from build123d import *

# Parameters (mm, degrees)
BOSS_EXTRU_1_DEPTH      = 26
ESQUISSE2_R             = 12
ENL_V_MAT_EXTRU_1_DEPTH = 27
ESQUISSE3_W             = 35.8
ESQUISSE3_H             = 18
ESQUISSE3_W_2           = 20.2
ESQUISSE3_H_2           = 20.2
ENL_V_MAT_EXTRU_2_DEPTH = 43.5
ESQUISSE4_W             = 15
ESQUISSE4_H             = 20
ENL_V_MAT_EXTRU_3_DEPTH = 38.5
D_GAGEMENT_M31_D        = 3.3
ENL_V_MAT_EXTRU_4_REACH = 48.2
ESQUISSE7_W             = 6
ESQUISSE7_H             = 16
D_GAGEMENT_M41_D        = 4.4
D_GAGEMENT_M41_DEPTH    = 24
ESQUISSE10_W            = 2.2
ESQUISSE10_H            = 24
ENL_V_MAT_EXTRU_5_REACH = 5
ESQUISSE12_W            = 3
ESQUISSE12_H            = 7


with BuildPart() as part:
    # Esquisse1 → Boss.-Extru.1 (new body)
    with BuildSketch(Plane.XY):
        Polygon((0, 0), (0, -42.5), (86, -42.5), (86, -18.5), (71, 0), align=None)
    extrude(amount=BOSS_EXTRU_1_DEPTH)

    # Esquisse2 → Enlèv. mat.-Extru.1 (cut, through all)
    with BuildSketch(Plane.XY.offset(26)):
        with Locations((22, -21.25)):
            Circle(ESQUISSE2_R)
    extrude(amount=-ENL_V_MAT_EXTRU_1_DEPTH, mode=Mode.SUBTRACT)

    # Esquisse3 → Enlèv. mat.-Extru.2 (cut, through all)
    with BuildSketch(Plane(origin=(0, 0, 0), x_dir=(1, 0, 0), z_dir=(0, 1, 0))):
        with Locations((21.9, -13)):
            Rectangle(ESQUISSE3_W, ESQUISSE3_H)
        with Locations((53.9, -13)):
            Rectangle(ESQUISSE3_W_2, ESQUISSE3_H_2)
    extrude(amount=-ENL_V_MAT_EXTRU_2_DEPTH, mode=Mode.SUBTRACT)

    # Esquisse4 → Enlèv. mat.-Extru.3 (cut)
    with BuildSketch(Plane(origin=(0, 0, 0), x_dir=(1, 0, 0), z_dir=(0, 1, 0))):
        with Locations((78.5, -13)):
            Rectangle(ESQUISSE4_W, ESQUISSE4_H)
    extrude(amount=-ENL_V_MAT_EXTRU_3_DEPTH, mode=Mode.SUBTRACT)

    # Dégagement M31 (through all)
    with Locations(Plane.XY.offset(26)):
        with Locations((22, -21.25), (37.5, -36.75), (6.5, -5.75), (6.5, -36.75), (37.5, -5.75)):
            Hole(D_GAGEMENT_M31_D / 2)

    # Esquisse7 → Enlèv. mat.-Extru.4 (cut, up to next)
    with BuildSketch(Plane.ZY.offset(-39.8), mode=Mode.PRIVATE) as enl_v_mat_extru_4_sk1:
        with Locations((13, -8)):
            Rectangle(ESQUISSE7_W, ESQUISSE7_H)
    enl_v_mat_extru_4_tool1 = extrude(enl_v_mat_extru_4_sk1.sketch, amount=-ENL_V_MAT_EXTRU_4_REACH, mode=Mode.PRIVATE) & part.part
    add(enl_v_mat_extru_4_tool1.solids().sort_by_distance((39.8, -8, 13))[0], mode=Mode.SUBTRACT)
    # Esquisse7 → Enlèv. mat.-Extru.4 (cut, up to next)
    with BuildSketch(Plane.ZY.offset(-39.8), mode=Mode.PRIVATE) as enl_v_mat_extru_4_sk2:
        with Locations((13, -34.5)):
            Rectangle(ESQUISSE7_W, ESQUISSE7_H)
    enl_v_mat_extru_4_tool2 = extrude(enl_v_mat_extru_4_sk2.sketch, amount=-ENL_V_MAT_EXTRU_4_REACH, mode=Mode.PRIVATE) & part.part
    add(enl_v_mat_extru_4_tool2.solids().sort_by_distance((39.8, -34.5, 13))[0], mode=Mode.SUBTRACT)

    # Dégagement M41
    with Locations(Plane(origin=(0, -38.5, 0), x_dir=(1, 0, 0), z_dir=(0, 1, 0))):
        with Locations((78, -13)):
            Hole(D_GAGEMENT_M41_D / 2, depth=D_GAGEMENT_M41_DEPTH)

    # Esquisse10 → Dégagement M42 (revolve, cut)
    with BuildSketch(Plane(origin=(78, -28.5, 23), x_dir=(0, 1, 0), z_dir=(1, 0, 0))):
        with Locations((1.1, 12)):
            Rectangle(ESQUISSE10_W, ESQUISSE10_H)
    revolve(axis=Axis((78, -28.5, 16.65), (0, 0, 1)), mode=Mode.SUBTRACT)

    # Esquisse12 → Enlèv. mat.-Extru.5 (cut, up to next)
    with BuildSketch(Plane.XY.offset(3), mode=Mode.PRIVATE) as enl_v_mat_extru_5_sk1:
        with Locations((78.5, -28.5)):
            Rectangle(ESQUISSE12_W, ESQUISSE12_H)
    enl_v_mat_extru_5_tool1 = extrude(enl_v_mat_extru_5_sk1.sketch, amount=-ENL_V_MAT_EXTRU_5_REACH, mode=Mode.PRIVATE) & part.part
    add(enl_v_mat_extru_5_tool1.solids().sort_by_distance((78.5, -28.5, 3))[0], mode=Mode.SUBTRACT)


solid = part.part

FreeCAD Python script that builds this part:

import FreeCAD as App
import Part
import Sketcher

V = App.Vector
Q = App.Units.Quantity


def add_polygon(sketch, points):
    """Adds a closed chain of lines whose ends are joined by coincident constraints."""
    first, n = sketch.GeometryCount, len(points)
    for a, b in zip(points, points[1:] + points[:1]):
        sketch.addGeometry(Part.LineSegment(App.Vector(*a, 0), App.Vector(*b, 0)), False)
    for i in range(n):
        sketch.addConstraint(Sketcher.Constraint("Coincident", first + i, 2, first + (i + 1) % n, 1))

doc = App.newDocument("Part")
params = doc.addObject("Spreadsheet::Sheet", "Params")
for row, (alias, value) in enumerate([
    ("sketch1_width", "86 mm"),
    ("sketch1_width2", "71 mm"),
    ("sketch1_height", "24 mm"),
    ("sketch1_height2", "42.5 mm"),
    ("pad1_length", "26 mm"),
    ("sketch2_diameter", "24 mm"),
    ("sketch3_height", "18 mm"),
    ("sketch3_width", "35.8 mm"),
    ("sketch3_width2", "20.2 mm"),
    ("sketch4_width", "15 mm"),
    ("sketch4_height", "20 mm"),
    ("pocket3_length", "38.5 mm"),
    ("sketch5_diameter", "3.3 mm"),
    ("hole_diameter", "3.3 mm"),
    ("sketch6_width", "16 mm"),
    ("sketch6_height", "6 mm"),
    ("sketch7_width", "16 mm"),
    ("sketch7_height", "6 mm"),
    ("sketch8_diameter", "4.4 mm"),
    ("hole2_diameter", "4.4 mm"),
    ("hole2_depth", "24 mm"),
    ("sketch9_height", "24 mm"),
    ("sketch9_width", "2.2 mm"),
    ("groove_angle", "360 deg"),
    ("sketch10_width", "3 mm"),
    ("sketch10_height", "7 mm"),
], start=1):
    params.set(f"A{row}", alias)
    params.set(f"B{row}", "=" + value)
    params.setAlias(f"B{row}", alias)

body = doc.addObject("PartDesign::Body", "Body")

sketch1 = body.newObject("Sketcher::SketchObject", "Sketch")
sketch1.AttachmentSupport = (doc.getObject("XY_Plane"), [""])
sketch1.MapMode = "FlatFace"
add_polygon(sketch1, [(0, 0), (0, -42), (86, -42), (86, -18), (71, 0)])
sketch1.addConstraint([
    Sketcher.Constraint("Vertical", 0),
    Sketcher.Constraint("Horizontal", 1),
    Sketcher.Constraint("Vertical", 2),
    Sketcher.Constraint("Horizontal", 4),
    Sketcher.Constraint("Coincident", 4, 2, -1, 1),
    Sketcher.Constraint("DistanceX", 1, 1, 1, 2, Q("86 mm")),
    Sketcher.Constraint("DistanceX", 4, 2, 4, 1, Q("71 mm")),
    Sketcher.Constraint("DistanceY", 2, 1, 2, 2, Q("24 mm")),
    Sketcher.Constraint("DistanceY", 0, 2, 0, 1, Q("42.5 mm")),
])
sketch1.setExpression("Constraints[10]", "Params.sketch1_width")
sketch1.setExpression("Constraints[11]", "Params.sketch1_width2")
sketch1.setExpression("Constraints[12]", "Params.sketch1_height")
sketch1.setExpression("Constraints[13]", "Params.sketch1_height2")
pad1 = body.newObject("PartDesign::Pad", "Pad")
pad1.Profile = sketch1
pad1.setExpression("Length", "Params.pad1_length")

sketch2 = body.newObject("Sketcher::SketchObject", "Sketch001")
sketch2.AttachmentSupport = (doc.getObject("XY_Plane"), [""])
sketch2.MapMode = "FlatFace"
sketch2.AttachmentOffset = App.Placement(V(0, 0, 26), App.Rotation())
sketch2.addGeometry(Part.Circle(V(22, -21, 0), V(0, 0, 1), 12), False)
sketch2.addConstraint([
    Sketcher.Constraint("Diameter", 0, Q("24 mm")),
    Sketcher.Constraint("DistanceX", -1, 1, 0, 3, Q("22 mm")),
    Sketcher.Constraint("DistanceY", 0, 3, -1, 1, Q("21.25 mm")),
])
sketch2.setExpression("Constraints[0]", "Params.sketch2_diameter")
pocket1 = body.newObject("PartDesign::Pocket", "Pocket")
pocket1.Profile = sketch2
pocket1.Type = "ThroughAll"

sketch3 = body.newObject("Sketcher::SketchObject", "Sketch002")
sketch3.AttachmentSupport = (doc.getObject("XZ_Plane"), [""])
sketch3.MapMode = "FlatFace"
add_polygon(sketch3, [(4, 4), (4, 22), (40, 22), (40, 4)])
add_polygon(sketch3, [(44, 3), (44, 23), (64, 23), (64, 3)])
sketch3.addConstraint([
    Sketcher.Constraint("Vertical", 0),
    Sketcher.Constraint("Horizontal", 1),
    Sketcher.Constraint("Vertical", 2),
    Sketcher.Constraint("Horizontal", 3),
    Sketcher.Constraint("Vertical", 4),
    Sketcher.Constraint("Horizontal", 5),
    Sketcher.Constraint("Vertical", 6),
    Sketcher.Constraint("Horizontal", 7),
    Sketcher.Constraint("Equal", 7, 4),
    Sketcher.Constraint("DistanceY", 0, 1, 0, 2, Q("18 mm")),
    Sketcher.Constraint("DistanceX", 1, 1, 1, 2, Q("35.8 mm")),
    Sketcher.Constraint("DistanceX", 5, 1, 5, 2, Q("20.2 mm")),
    Sketcher.Constraint("DistanceX", -1, 1, 0, 2, Q("4 mm")),
    Sketcher.Constraint("DistanceY", -1, 1, 0, 2, Q("22 mm")),
    Sketcher.Constraint("DistanceX", -1, 1, 5, 2, Q("64 mm")),
    Sketcher.Constraint("DistanceY", -1, 1, 4, 2, Q("23.1 mm")),
])
sketch3.setExpression("Constraints[17]", "Params.sketch3_height")
sketch3.setExpression("Constraints[18]", "Params.sketch3_width")
sketch3.setExpression("Constraints[19]", "Params.sketch3_width2")
pocket2 = body.newObject("PartDesign::Pocket", "Pocket001")
pocket2.Profile = sketch3
pocket2.Type = "ThroughAll"
pocket2.Reversed = True

sketch4 = body.newObject("Sketcher::SketchObject", "Sketch003")
sketch4.AttachmentSupport = (doc.getObject("XZ_Plane"), [""])
sketch4.MapMode = "FlatFace"
add_polygon(sketch4, [(71, 3), (71, 23), (86, 23), (86, 3)])
sketch4.addConstraint([
    Sketcher.Constraint("Vertical", 0),
    Sketcher.Constraint("Horizontal", 1),
    Sketcher.Constraint("Vertical", 2),
    Sketcher.Constraint("Horizontal", 3),
    Sketcher.Constraint("DistanceX", 1, 1, 1, 2, Q("15 mm")),
    Sketcher.Constraint("DistanceY", 0, 1, 0, 2, Q("20 mm")),
    Sketcher.Constraint("DistanceX", -1, 1, 0, 2, Q("71 mm")),
    Sketcher.Constraint("DistanceY", -1, 1, 0, 2, Q("23 mm")),
])
sketch4.setExpression("Constraints[8]", "Params.sketch4_width")
sketch4.setExpression("Constraints[9]", "Params.sketch4_height")
pocket3 = body.newObject("PartDesign::Pocket", "Pocket002")
pocket3.Profile = sketch4
pocket3.setExpression("Length", "Params.pocket3_length")
pocket3.Reversed = True

sketch5 = body.newObject("Sketcher::SketchObject", "Sketch004")
sketch5.AttachmentSupport = (doc.getObject("XY_Plane"), [""])
sketch5.MapMode = "FlatFace"
sketch5.AttachmentOffset = App.Placement(V(0, 0, 26), App.Rotation())
sketch5.addGeometry([
    Part.Circle(V(22, -21.2, 0), V(0, 0, 1), 1.6),
    Part.Circle(V(37.5, -36.8, 0), V(0, 0, 1), 1.6),
    Part.Circle(V(6.5, -5.8, 0), V(0, 0, 1), 1.6),
    Part.Circle(V(6.5, -36.8, 0), V(0, 0, 1), 1.6),
    Part.Circle(V(37.5, -5.8, 0), V(0, 0, 1), 1.6),
], False)
sketch5.addConstraint([
    Sketcher.Constraint("Equal", 0, 1),
    Sketcher.Constraint("Equal", 1, 2),
    Sketcher.Constraint("Equal", 2, 3),
    Sketcher.Constraint("Equal", 3, 4),
    Sketcher.Constraint("Horizontal", 1, 3, 3, 3),
    Sketcher.Constraint("Horizontal", 2, 3, 4, 3),
    Sketcher.Constraint("Vertical", 2, 3, 3, 3),
    Sketcher.Constraint("Vertical", 1, 3, 4, 3),
    Sketcher.Constraint("Diameter", 0, Q("3.3 mm")),
    Sketcher.Constraint("DistanceX", -1, 1, 0, 3, Q("22 mm")),
    Sketcher.Constraint("DistanceX", 2, 3, 1, 3, Q("31 mm")),
    Sketcher.Constraint("DistanceY", 1, 3, 2, 3, Q("31 mm")),
    Sketcher.Constraint("DistanceX", -1, 1, 1, 3, Q("37.5 mm")),
    Sketcher.Constraint("DistanceY", 1, 3, 0, 3, Q("15.5 mm")),
    Sketcher.Constraint("DistanceY", 0, 3, -1, 1, Q("21.25 mm")),
])
sketch5.setExpression("Constraints[8]", "Params.sketch5_diameter")
doc.recompute()
hole = body.newObject("PartDesign::Hole", "Hole")
hole.Profile = sketch5
hole.ThreadType = "None"
hole.setExpression("Diameter", "Params.hole_diameter")
hole.DepthType = "ThroughAll"

sketch6 = body.newObject("Sketcher::SketchObject", "Sketch005")
sketch6.AttachmentSupport = (doc.getObject("YZ_Plane"), [""])
sketch6.MapMode = "FlatFace"
sketch6.AttachmentOffset = App.Placement(V(0, 0, 39.8), App.Rotation())
add_polygon(sketch6, [(0, 10), (-16, 10), (-16, 16), (0, 16)])
sketch6.addConstraint([
    Sketcher.Constraint("Horizontal", 0),
    Sketcher.Constraint("Vertical", 1),
    Sketcher.Constraint("Horizontal", 2),
    Sketcher.Constraint("Vertical", 3),
    Sketcher.Constraint("PointOnObject", 2, 2, -2),
    Sketcher.Constraint("DistanceX", 0, 2, 0, 1, Q("16 mm")),
    Sketcher.Constraint("DistanceY", 1, 1, 1, 2, Q("6 mm")),
    Sketcher.Constraint("DistanceY", -1, 1, 0, 2, Q("10 mm")),
])
sketch6.setExpression("Constraints[9]", "Params.sketch6_width")
sketch6.setExpression("Constraints[10]", "Params.sketch6_height")
pocket4 = body.newObject("PartDesign::Pocket", "Pocket003")
pocket4.Profile = sketch6
pocket4.Type = "UpToFirst"
pocket4.Reversed = True

sketch7 = body.newObject("Sketcher::SketchObject", "Sketch006")
sketch7.AttachmentSupport = (doc.getObject("YZ_Plane"), [""])
sketch7.MapMode = "FlatFace"
sketch7.AttachmentOffset = App.Placement(V(0, 0, 39.8), App.Rotation())
add_polygon(sketch7, [(-26, 10), (-42, 10), (-42, 16), (-26, 16)])
sketch7.addConstraint([
    Sketcher.Constraint("Horizontal", 0),
    Sketcher.Constraint("Vertical", 1),
    Sketcher.Constraint("Horizontal", 2),
    Sketcher.Constraint("Vertical", 3),
    Sketcher.Constraint("DistanceX", 0, 2, 0, 1, Q("16 mm")),
    Sketcher.Constraint("DistanceY", 1, 1, 1, 2, Q("6 mm")),
    Sketcher.Constraint("DistanceY", -1, 1, 0, 2, Q("10 mm")),
    Sketcher.Constraint("DistanceX", 0, 2, -1, 1, Q("42.5 mm")),
])
sketch7.setExpression("Constraints[8]", "Params.sketch7_width")
sketch7.setExpression("Constraints[9]", "Params.sketch7_height")
pocket5 = body.newObject("PartDesign::Pocket", "Pocket004")
pocket5.Profile = sketch7
pocket5.Type = "UpToFirst"
pocket5.Reversed = True

sketch8 = body.newObject("Sketcher::SketchObject", "Sketch007")
sketch8.AttachmentSupport = (doc.getObject("XZ_Plane"), [""])
sketch8.MapMode = "FlatFace"
sketch8.AttachmentOffset = App.Placement(V(0, 0, 38.5), App.Rotation())
sketch8.addGeometry(Part.Circle(V(78, 13, 0), V(0, 0, 1), 2.2), False)
sketch8.addConstraint([
    Sketcher.Constraint("Diameter", 0, Q("4.4 mm")),
    Sketcher.Constraint("DistanceX", -1, 1, 0, 3, Q("78 mm")),
    Sketcher.Constraint("DistanceY", -1, 1, 0, 3, Q("13 mm")),
])
sketch8.setExpression("Constraints[0]", "Params.sketch8_diameter")
doc.recompute()
hole2 = body.newObject("PartDesign::Hole", "Hole001")
hole2.Profile = sketch8
hole2.ThreadType = "None"
hole2.setExpression("Diameter", "Params.hole2_diameter")
hole2.DepthType = "Dimension"
hole2.setExpression("Depth", "Params.hole2_depth")
hole2.DrillPoint = "Flat"
hole2.Reversed = True

sketch9 = body.newObject("Sketcher::SketchObject", "Sketch008")
sketch9.AttachmentSupport = (doc.getObject("YZ_Plane"), [""])
sketch9.MapMode = "FlatFace"
sketch9.AttachmentOffset = App.Placement(V(0, 0, 78), App.Rotation())
add_polygon(sketch9, [(-28.5, 47), (-28.5, 23), (-26.3, 23), (-26.3, 47)])
sketch9.addGeometry(Part.LineSegment(V(-28.5, 23, 0), V(-28.5, 47, 0)), True)
sketch9.addConstraint([
    Sketcher.Constraint("Vertical", 0),
    Sketcher.Constraint("Horizontal", 1),
    Sketcher.Constraint("Vertical", 2),
    Sketcher.Constraint("Horizontal", 3),
    Sketcher.Constraint("Vertical", 4),
    Sketcher.Constraint("Coincident", 4, 1, 0, 2),
    Sketcher.Constraint("Horizontal", 2, 2, 4, 2),
    Sketcher.Constraint("DistanceY", 0, 2, 0, 1, Q("24 mm")),
    Sketcher.Constraint("DistanceX", 1, 1, 1, 2, Q("2.2 mm")),
    Sketcher.Constraint("DistanceY", -1, 1, 0, 2, Q("23 mm")),
    Sketcher.Constraint("DistanceX", 0, 2, -1, 1, Q("28.5 mm")),
])
sketch9.setExpression("Constraints[11]", "Params.sketch9_height")
sketch9.setExpression("Constraints[12]", "Params.sketch9_width")
groove = body.newObject("PartDesign::Groove", "Groove")
groove.Profile = sketch9
groove.ReferenceAxis = (sketch9, ["Axis0"])
groove.setExpression("Angle", "Params.groove_angle")

sketch10 = body.newObject("Sketcher::SketchObject", "Sketch009")
sketch10.AttachmentSupport = (doc.getObject("XY_Plane"), [""])
sketch10.MapMode = "FlatFace"
sketch10.AttachmentOffset = App.Placement(V(0, 0, 3), App.Rotation())
add_polygon(sketch10, [(77, -25), (77, -32), (80, -32), (80, -25)])
sketch10.addConstraint([
    Sketcher.Constraint("Vertical", 0),
    Sketcher.Constraint("Horizontal", 1),
    Sketcher.Constraint("Vertical", 2),
    Sketcher.Constraint("Horizontal", 3),
    Sketcher.Constraint("DistanceX", 1, 1, 1, 2, Q("3 mm")),
    Sketcher.Constraint("DistanceY", 0, 2, 0, 1, Q("7 mm")),
    Sketcher.Constraint("DistanceX", -1, 1, 0, 2, Q("77 mm")),
    Sketcher.Constraint("DistanceY", 0, 2, -1, 1, Q("32 mm")),
])
sketch10.setExpression("Constraints[8]", "Params.sketch10_width")
sketch10.setExpression("Constraints[9]", "Params.sketch10_height")
pocket6 = body.newObject("PartDesign::Pocket", "Pocket005")
pocket6.Profile = sketch10
pocket6.Type = "UpToFirst"

doc.recompute()
